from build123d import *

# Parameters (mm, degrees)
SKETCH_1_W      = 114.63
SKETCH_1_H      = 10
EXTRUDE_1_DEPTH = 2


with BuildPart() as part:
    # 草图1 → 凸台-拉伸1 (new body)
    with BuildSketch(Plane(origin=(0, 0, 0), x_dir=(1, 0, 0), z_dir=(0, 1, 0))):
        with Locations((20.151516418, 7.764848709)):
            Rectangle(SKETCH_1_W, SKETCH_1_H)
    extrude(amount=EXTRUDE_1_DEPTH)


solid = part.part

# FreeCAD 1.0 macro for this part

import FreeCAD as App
import Part
import Sketcher

V = App.Vector
Q = App.Units.Quantity

doc = App.newDocument("Part")
body = doc.addObject("PartDesign::Body", "Body")

sketch1 = body.newObject("Sketcher::SketchObject", "Sketch")
sketch1.AttachmentSupport = (doc.getObject("XZ_Plane"), [""])
sketch1.MapMode = "FlatFace"
sketch1.addGeometry(Part.LineSegment(V(-37.163484, -12.764849, 0), V(-37.163484, -2.764849, 0)), False)
sketch1.addGeometry(Part.LineSegment(V(-37.163484, -2.764849, 0), V(77.466516, -2.764849, 0)), False)
sketch1.addGeometry(Part.LineSegment(V(77.466516, -2.764849, 0), V(77.466516, -12.764849, 0)), False)
sketch1.addGeometry(Part.LineSegment(V(77.466516, -12.764849, 0), V(-37.163484, -12.764849, 0)), False)
sketch1.addConstraint(Sketcher.Constraint("Coincident", 0, 2, 1, 1))
sketch1.addConstraint(Sketcher.Constraint("Coincident", 1, 2, 2, 1))
sketch1.addConstraint(Sketcher.Constraint("Coincident", 2, 2, 3, 1))
sketch1.addConstraint(Sketcher.Constraint("Coincident", 3, 2, 0, 1))
sketch1.addConstraint(Sketcher.Constraint("Vertical", 0))
sketch1.addConstraint(Sketcher.Constraint("Horizontal", 1))
sketch1.addConstraint(Sketcher.Constraint("Vertical", 2))
sketch1.addConstraint(Sketcher.Constraint("Horizontal", 3))
sketch1.addConstraint(Sketcher.Constraint("DistanceY", 0, 1, 0, 2, Q("10 mm")))
sketch1.addConstraint(Sketcher.Constraint("DistanceX", 1, 1, 1, 2, Q("114.63 mm")))
sketch1.addConstraint(Sketcher.Constraint("DistanceY", 0, 2, -1, 1, Q("2.764849 mm")))
sketch1.addConstraint(Sketcher.Constraint("DistanceX", 0, 2, -1, 1, Q("37.163484 mm")))
pad1 = body.newObject("PartDesign::Pad", "Pad")
pad1.Profile = sketch1
pad1.Length = 2
pad1.Reversed = True

doc.recompute()
